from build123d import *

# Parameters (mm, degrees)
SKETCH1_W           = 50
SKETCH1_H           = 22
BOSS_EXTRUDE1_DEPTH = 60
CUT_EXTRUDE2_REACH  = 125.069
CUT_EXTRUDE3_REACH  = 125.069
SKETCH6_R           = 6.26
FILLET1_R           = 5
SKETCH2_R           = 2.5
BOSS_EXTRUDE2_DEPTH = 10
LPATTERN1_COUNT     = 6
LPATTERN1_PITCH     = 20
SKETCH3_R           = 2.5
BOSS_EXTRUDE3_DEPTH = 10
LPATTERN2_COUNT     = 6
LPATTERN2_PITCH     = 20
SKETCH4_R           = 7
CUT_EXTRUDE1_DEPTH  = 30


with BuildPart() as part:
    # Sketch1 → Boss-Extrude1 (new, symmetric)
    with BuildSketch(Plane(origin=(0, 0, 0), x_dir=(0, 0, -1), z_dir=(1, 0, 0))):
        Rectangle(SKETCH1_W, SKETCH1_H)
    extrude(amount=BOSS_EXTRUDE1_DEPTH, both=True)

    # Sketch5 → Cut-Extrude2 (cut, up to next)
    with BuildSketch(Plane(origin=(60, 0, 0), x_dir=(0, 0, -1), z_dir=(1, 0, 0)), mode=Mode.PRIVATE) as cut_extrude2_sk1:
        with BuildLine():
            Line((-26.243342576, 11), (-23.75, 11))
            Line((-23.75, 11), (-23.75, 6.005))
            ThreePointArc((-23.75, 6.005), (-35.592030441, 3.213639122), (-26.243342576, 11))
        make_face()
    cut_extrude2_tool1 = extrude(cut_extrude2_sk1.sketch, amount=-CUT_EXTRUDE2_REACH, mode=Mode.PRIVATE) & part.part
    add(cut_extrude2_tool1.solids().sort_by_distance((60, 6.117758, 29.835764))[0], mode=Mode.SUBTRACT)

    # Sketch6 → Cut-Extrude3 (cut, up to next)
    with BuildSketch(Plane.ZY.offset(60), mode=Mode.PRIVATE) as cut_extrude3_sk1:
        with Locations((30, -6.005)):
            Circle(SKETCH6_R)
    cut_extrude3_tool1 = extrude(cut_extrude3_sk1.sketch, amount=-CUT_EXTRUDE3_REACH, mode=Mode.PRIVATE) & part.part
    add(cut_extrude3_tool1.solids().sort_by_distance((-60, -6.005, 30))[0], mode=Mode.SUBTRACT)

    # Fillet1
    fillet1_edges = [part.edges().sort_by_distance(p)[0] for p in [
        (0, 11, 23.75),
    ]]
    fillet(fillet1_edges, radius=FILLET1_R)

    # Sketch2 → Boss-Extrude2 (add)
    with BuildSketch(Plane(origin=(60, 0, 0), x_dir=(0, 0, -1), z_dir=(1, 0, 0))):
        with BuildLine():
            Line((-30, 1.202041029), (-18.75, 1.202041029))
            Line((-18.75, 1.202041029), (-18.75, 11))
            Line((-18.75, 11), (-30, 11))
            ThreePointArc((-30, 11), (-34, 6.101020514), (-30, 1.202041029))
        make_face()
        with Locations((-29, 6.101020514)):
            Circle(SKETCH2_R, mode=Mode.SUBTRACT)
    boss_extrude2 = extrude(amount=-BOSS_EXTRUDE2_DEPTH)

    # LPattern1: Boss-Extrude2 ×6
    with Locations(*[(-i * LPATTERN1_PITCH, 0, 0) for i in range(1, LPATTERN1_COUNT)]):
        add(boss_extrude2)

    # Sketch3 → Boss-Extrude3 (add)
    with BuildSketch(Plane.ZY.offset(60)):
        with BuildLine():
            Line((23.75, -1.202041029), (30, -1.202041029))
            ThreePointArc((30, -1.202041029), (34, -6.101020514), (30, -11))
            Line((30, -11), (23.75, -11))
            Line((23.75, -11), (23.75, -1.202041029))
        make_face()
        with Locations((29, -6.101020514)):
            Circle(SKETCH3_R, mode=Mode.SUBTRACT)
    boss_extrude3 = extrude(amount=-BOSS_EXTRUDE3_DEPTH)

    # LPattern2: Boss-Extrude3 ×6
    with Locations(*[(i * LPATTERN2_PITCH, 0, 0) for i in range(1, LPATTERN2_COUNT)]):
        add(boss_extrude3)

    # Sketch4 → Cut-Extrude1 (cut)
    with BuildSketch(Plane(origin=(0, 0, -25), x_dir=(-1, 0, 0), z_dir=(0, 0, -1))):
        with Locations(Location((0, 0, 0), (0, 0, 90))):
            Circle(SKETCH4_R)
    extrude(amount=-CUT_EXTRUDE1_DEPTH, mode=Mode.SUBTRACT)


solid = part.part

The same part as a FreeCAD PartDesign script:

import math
import FreeCAD as App
import Part
import Sketcher

V = App.Vector
Q = App.Units.Quantity


def edges_at(feature, points):
    """Names of the edges that pass closest to the given points."""
    edges = feature.Shape.Edges
    near = lambda p: min(range(len(edges)), key=lambda i: edges[i].distToShape(Part.Vertex(*p))[0])
    return sorted({f"Edge{near(p) + 1}" for p in points})


def add_polygon(sketch, points):
    """Adds a closed chain of lines whose ends are joined by coincident constraints."""
    first, n = sketch.GeometryCount, len(points)
    for a, b in zip(points, points[1:] + points[:1]):
        sketch.addGeometry(Part.LineSegment(App.Vector(*a, 0), App.Vector(*b, 0)), False)
    for i in range(n):
        sketch.addConstraint(Sketcher.Constraint("Coincident", first + i, 2, first + (i + 1) % n, 1))

doc = App.newDocument("Part")
params = doc.addObject("Spreadsheet::Sheet", "Params")
for row, (alias, value) in enumerate([
    ("sketch1_width", "22 mm"),
    ("sketch1_height", "50 mm"),
    ("pad1_length", "120 mm"),
    ("sketch2_radius", "6.25 mm"),
    ("pocket1_length", "120 mm"),
    ("sketch3_diameter", "12.52 mm"),
    ("pocket2_length", "120 mm"),
    ("fillet_radius", "5 mm"),
    ("sketch4_diameter", "5 mm"),
    ("sketch4_radius", "5 mm"),
    ("sketch4_height", "11.25 mm"),
    ("pad2_length", "10 mm"),
    ("linearpattern_pitch", "20 mm"),
    ("sketch5_diameter", "5 mm"),
    ("sketch5_radius", "5 mm"),
    ("sketch5_height", "6.25 mm"),
    ("pad3_length", "10 mm"),
    ("linearpattern2_pitch", "20 mm"),
    ("sketch6_diameter", "14 mm"),
    ("pocket3_length", "30 mm"),
], start=1):
    params.set(f"A{row}", alias)
    params.set(f"B{row}", "=" + value)
    params.setAlias(f"B{row}", alias)

body = doc.addObject("PartDesign::Body", "Body")

sketch1 = doc.addObject("Sketcher::SketchObject", "Sketch")
body.addObject(sketch1)
sketch1.AttachmentSupport = (doc.YZ_Plane, [""])
sketch1.MapMode = "FlatFace"
add_polygon(sketch1, [(11, 25), (-11, 25), (-11, -25), (11, -25)])
sketch1.addConstraint(Sketcher.Constraint("Horizontal", 0))
sketch1.addConstraint(Sketcher.Constraint("Vertical", 1))
sketch1.addConstraint(Sketcher.Constraint("Horizontal", 2))
sketch1.addConstraint(Sketcher.Constraint("Vertical", 3))
sketch1.addConstraint(Sketcher.Constraint("Symmetric", 0, 2, 2, 2, -1, 1))
sketch1.addConstraint(Sketcher.Constraint("DistanceX", 0, 2, 0, 1, Q("22 mm")))
sketch1.addConstraint(Sketcher.Constraint("DistanceY", 1, 2, 1, 1, Q("50 mm")))
sketch1.setExpression("Constraints[9]", "Params.sketch1_width")
sketch1.setExpression("Constraints[10]", "Params.sketch1_height")
pad1 = doc.addObject("PartDesign::Pad", "Pad")
body.addObject(pad1)
pad1.Profile = sketch1
pad1.setExpression("Length", "Params.pad1_length")
pad1.Midplane = True

sketch2 = doc.addObject("Sketcher::SketchObject", "Sketch001")
body.addObject(sketch2)
sketch2.AttachmentSupport = (doc.YZ_Plane, [""])
sketch2.MapMode = "FlatFace"
sketch2.AttachmentOffset = App.Placement(V(0, 0, 60), App.Rotation())
sketch2.addGeometry(Part.LineSegment(V(11, 23.75, 0), V(11, 26.243343, 0)), False)
sketch2.addGeometry(Part.ArcOfCircle(Part.Circle(V(6.005, 30, 0), V(0, 0, 1), 6.25), math.radians(-36.946224), math.radians(270)), False)
sketch2.addGeometry(Part.LineSegment(V(6.005, 23.75, 0), V(11, 23.75, 0)), False)
sketch2.addConstraint(Sketcher.Constraint("Coincident", 0, 2, 1, 1))
sketch2.addConstraint(Sketcher.Constraint("Tangent", 1, 2, 2, 1))
sketch2.addConstraint(Sketcher.Constraint("Coincident", 2, 2, 0, 1))
sketch2.addConstraint(Sketcher.Constraint("Vertical", 0))
sketch2.addConstraint(Sketcher.Constraint("Horizontal", 2))
sketch2.addConstraint(Sketcher.Constraint("Radius", 1, Q("6.25 mm")))
sketch2.addConstraint(Sketcher.Constraint("DistanceY", -1, 1, 1, 3, Q("30 mm")))
sketch2.addConstraint(Sketcher.Constraint("DistanceX", -1, 1, 0, 2, Q("11 mm")))
sketch2.addConstraint(Sketcher.Constraint("DistanceX", 2, 1, 2, 2, Q("4.995 mm")))
sketch2.setExpression("Constraints[5]", "Params.sketch2_radius")
pocket1 = doc.addObject("PartDesign::Pocket", "Pocket")
body.addObject(pocket1)
pocket1.Profile = sketch2
pocket1.setExpression("Length", "Params.pocket1_length")

sketch3 = doc.addObject("Sketcher::SketchObject", "Sketch002")
body.addObject(sketch3)
sketch3.AttachmentSupport = (doc.YZ_Plane, [""])
sketch3.MapMode = "FlatFace"
sketch3.AttachmentOffset = App.Placement(V(0, 0, -60), App.Rotation())
sketch3.addGeometry(Part.Circle(V(-6.005, 30, 0), V(0, 0, 1), 6.26), False)
sketch3.addConstraint(Sketcher.Constraint("Diameter", 0, Q("12.52 mm")))
sketch3.addConstraint(Sketcher.Constraint("DistanceY", -1, 1, 0, 3, Q("30 mm")))
sketch3.addConstraint(Sketcher.Constraint("DistanceX", 0, 3, -1, 1, Q("6.005 mm")))
sketch3.setExpression("Constraints[0]", "Params.sketch3_diameter")
pocket2 = doc.addObject("PartDesign::Pocket", "Pocket001")
body.addObject(pocket2)
pocket2.Profile = sketch3
pocket2.setExpression("Length", "Params.pocket2_length")
pocket2.Reversed = True
doc.recompute()

fillet = doc.addObject("PartDesign::Fillet", "Fillet")
body.addObject(fillet)
fillet.Base = (pocket2, edges_at(pocket2, [(0, 11, 23.75)]))
fillet.setExpression("Radius", "Params.fillet_radius")

sketch4 = doc.addObject("Sketcher::SketchObject", "Sketch003")
body.addObject(sketch4)
sketch4.AttachmentSupport = (doc.YZ_Plane, [""])
sketch4.MapMode = "FlatFace"
sketch4.AttachmentOffset = App.Placement(V(0, 0, 60), App.Rotation())
sketch4.addGeometry(Part.LineSegment(V(1.202041, 30, 0), V(1.202041, 18.75, 0)), False)
sketch4.addGeometry(Part.LineSegment(V(1.202041, 18.75, 0), V(11, 18.75, 0)), False)
sketch4.addGeometry(Part.LineSegment(V(11, 18.75, 0), V(11, 30, 0)), False)
sketch4.addGeometry(Part.ArcOfCircle(Part.Circle(V(6.101021, 29, 0), V(0, 0, 1), 5), math.radians(11.536959), math.radians(168.463041)), False)
sketch4.addGeometry(Part.Circle(V(6.101021, 29, 0), V(0, 0, 1), 2.5), False)
sketch4.addConstraint(Sketcher.Constraint("Coincident", 0, 2, 1, 1))
sketch4.addConstraint(Sketcher.Constraint("Coincident", 1, 2, 2, 1))
sketch4.addConstraint(Sketcher.Constraint("Coincident", 2, 2, 3, 1))
sketch4.addConstraint(Sketcher.Constraint("Coincident", 3, 2, 0, 1))
sketch4.addConstraint(Sketcher.Constraint("Vertical", 0))
sketch4.addConstraint(Sketcher.Constraint("Horizontal", 1))
sketch4.addConstraint(Sketcher.Constraint("Vertical", 2))
sketch4.addConstraint(Sketcher.Constraint("Coincident", 4, 3, 3, 3))
sketch4.addConstraint(Sketcher.Constraint("Horizontal", 2, 2, 3, 2))
sketch4.addConstraint(Sketcher.Constraint("Diameter", 4, Q("5 mm")))
sketch4.addConstraint(Sketcher.Constraint("Radius", 3, Q("5 mm")))
sketch4.addConstraint(Sketcher.Constraint("DistanceY", -1, 1, 3, 3, Q("29 mm")))
sketch4.addConstraint(Sketcher.Constraint("DistanceX", -1, 1, 1, 2, Q("11 mm")))
sketch4.addConstraint(Sketcher.Constraint("DistanceY", -1, 1, 2, 2, Q("30 mm")))
sketch4.addConstraint(Sketcher.Constraint("DistanceY", 0, 2, 0, 1, Q("11.25 mm")))
sketch4.setExpression("Constraints[9]", "Params.sketch4_diameter")
sketch4.setExpression("Constraints[10]", "Params.sketch4_radius")
sketch4.setExpression("Constraints[14]", "Params.sketch4_height")
pad2 = doc.addObject("PartDesign::Pad", "Pad001")
body.addObject(pad2)
pad2.Profile = sketch4
pad2.setExpression("Length", "Params.pad2_length")
pad2.Reversed = True
doc.recompute()

linearpattern = doc.addObject("PartDesign::LinearPattern", "LinearPattern")
body.addObject(linearpattern)
linearpattern.Originals = [pad2]
linearpattern.Direction = (doc.X_Axis, [""])
linearpattern.Mode = "offset"
linearpattern.setExpression("Offset", "Params.linearpattern_pitch")
linearpattern.Occurrences = 6
linearpattern.Reversed = True
body.Tip = linearpattern

sketch5 = doc.addObject("Sketcher::SketchObject", "Sketch004")
body.addObject(sketch5)
sketch5.AttachmentSupport = (doc.YZ_Plane, [""])
sketch5.MapMode = "FlatFace"
sketch5.AttachmentOffset = App.Placement(V(0, 0, -60), App.Rotation())
sketch5.addGeometry(Part.LineSegment(V(-1.202041, 30, 0), V(-1.202041, 23.75, 0)), False)
sketch5.addGeometry(Part.LineSegment(V(-1.202041, 23.75, 0), V(-11, 23.75, 0)), False)
sketch5.addGeometry(Part.LineSegment(V(-11, 23.75, 0), V(-11, 30, 0)), False)
sketch5.addGeometry(Part.ArcOfCircle(Part.Circle(V(-6.101021, 29, 0), V(0, 0, 1), 5), math.radians(11.536959), math.radians(168.463041)), False)
sketch5.addGeometry(Part.Circle(V(-6.101021, 29, 0), V(0, 0, 1), 2.5), False)
sketch5.addConstraint(Sketcher.Constraint("Coincident", 0, 2, 1, 1))
sketch5.addConstraint(Sketcher.Constraint("Coincident", 1, 2, 2, 1))
sketch5.addConstraint(Sketcher.Constraint("Coincident", 2, 2, 3, 2))
sketch5.addConstraint(Sketcher.Constraint("Coincident", 3, 1, 0, 1))
sketch5.addConstraint(Sketcher.Constraint("Vertical", 0))
sketch5.addConstraint(Sketcher.Constraint("Horizontal", 1))
sketch5.addConstraint(Sketcher.Constraint("Vertical", 2))
sketch5.addConstraint(Sketcher.Constraint("Coincident", 4, 3, 3, 3))
sketch5.addConstraint(Sketcher.Constraint("Horizontal", 2, 2, 3, 1))
sketch5.addConstraint(Sketcher.Constraint("Diameter", 4, Q("5 mm")))
sketch5.addConstraint(Sketcher.Constraint("Radius", 3, Q("5 mm")))
sketch5.addConstraint(Sketcher.Constraint("DistanceY", -1, 1, 3, 3, Q("29 mm")))
sketch5.addConstraint(Sketcher.Constraint("DistanceX", 1, 2, -1, 1, Q("11 mm")))
sketch5.addConstraint(Sketcher.Constraint("DistanceY", -1, 1, 2, 2, Q("30 mm")))
sketch5.addConstraint(Sketcher.Constraint("DistanceY", 0, 2, 0, 1, Q("6.25 mm")))
sketch5.setExpression("Constraints[9]", "Params.sketch5_diameter")
sketch5.setExpression("Constraints[10]", "Params.sketch5_radius")
sketch5.setExpression("Constraints[14]", "Params.sketch5_height")
pad3 = doc.addObject("PartDesign::Pad", "Pad002")
body.addObject(pad3)
pad3.Profile = sketch5
pad3.setExpression("Length", "Params.pad3_length")
doc.recompute()

linearpattern2 = doc.addObject("PartDesign::LinearPattern", "LinearPattern001")
body.addObject(linearpattern2)
linearpattern2.Originals = [pad3]
linearpattern2.Direction = (doc.X_Axis, [""])
linearpattern2.Mode = "offset"
linearpattern2.setExpression("Offset", "Params.linearpattern2_pitch")
linearpattern2.Occurrences = 6
body.Tip = linearpattern2

sketch6 = doc.addObject("Sketcher::SketchObject", "Sketch005")
body.addObject(sketch6)
sketch6.AttachmentSupport = (doc.XY_Plane, [""])
sketch6.MapMode = "FlatFace"
sketch6.AttachmentOffset = App.Placement(V(0, 0, -25), App.Rotation())
sketch6.addGeometry(Part.Circle(V(0, 0, 0), V(0, 0, 1), 7), False)
sketch6.addConstraint(Sketcher.Constraint("Coincident", 0, 3, -1, 1))
sketch6.addConstraint(Sketcher.Constraint("Diameter", 0, Q("14 mm")))
sketch6.setExpression("Constraints[1]", "Params.sketch6_diameter")
pocket3 = doc.addObject("PartDesign::Pocket", "Pocket002")
body.addObject(pocket3)
pocket3.Profile = sketch6
pocket3.setExpression("Length", "Params.pocket3_length")
pocket3.Reversed = True

doc.recompute()
